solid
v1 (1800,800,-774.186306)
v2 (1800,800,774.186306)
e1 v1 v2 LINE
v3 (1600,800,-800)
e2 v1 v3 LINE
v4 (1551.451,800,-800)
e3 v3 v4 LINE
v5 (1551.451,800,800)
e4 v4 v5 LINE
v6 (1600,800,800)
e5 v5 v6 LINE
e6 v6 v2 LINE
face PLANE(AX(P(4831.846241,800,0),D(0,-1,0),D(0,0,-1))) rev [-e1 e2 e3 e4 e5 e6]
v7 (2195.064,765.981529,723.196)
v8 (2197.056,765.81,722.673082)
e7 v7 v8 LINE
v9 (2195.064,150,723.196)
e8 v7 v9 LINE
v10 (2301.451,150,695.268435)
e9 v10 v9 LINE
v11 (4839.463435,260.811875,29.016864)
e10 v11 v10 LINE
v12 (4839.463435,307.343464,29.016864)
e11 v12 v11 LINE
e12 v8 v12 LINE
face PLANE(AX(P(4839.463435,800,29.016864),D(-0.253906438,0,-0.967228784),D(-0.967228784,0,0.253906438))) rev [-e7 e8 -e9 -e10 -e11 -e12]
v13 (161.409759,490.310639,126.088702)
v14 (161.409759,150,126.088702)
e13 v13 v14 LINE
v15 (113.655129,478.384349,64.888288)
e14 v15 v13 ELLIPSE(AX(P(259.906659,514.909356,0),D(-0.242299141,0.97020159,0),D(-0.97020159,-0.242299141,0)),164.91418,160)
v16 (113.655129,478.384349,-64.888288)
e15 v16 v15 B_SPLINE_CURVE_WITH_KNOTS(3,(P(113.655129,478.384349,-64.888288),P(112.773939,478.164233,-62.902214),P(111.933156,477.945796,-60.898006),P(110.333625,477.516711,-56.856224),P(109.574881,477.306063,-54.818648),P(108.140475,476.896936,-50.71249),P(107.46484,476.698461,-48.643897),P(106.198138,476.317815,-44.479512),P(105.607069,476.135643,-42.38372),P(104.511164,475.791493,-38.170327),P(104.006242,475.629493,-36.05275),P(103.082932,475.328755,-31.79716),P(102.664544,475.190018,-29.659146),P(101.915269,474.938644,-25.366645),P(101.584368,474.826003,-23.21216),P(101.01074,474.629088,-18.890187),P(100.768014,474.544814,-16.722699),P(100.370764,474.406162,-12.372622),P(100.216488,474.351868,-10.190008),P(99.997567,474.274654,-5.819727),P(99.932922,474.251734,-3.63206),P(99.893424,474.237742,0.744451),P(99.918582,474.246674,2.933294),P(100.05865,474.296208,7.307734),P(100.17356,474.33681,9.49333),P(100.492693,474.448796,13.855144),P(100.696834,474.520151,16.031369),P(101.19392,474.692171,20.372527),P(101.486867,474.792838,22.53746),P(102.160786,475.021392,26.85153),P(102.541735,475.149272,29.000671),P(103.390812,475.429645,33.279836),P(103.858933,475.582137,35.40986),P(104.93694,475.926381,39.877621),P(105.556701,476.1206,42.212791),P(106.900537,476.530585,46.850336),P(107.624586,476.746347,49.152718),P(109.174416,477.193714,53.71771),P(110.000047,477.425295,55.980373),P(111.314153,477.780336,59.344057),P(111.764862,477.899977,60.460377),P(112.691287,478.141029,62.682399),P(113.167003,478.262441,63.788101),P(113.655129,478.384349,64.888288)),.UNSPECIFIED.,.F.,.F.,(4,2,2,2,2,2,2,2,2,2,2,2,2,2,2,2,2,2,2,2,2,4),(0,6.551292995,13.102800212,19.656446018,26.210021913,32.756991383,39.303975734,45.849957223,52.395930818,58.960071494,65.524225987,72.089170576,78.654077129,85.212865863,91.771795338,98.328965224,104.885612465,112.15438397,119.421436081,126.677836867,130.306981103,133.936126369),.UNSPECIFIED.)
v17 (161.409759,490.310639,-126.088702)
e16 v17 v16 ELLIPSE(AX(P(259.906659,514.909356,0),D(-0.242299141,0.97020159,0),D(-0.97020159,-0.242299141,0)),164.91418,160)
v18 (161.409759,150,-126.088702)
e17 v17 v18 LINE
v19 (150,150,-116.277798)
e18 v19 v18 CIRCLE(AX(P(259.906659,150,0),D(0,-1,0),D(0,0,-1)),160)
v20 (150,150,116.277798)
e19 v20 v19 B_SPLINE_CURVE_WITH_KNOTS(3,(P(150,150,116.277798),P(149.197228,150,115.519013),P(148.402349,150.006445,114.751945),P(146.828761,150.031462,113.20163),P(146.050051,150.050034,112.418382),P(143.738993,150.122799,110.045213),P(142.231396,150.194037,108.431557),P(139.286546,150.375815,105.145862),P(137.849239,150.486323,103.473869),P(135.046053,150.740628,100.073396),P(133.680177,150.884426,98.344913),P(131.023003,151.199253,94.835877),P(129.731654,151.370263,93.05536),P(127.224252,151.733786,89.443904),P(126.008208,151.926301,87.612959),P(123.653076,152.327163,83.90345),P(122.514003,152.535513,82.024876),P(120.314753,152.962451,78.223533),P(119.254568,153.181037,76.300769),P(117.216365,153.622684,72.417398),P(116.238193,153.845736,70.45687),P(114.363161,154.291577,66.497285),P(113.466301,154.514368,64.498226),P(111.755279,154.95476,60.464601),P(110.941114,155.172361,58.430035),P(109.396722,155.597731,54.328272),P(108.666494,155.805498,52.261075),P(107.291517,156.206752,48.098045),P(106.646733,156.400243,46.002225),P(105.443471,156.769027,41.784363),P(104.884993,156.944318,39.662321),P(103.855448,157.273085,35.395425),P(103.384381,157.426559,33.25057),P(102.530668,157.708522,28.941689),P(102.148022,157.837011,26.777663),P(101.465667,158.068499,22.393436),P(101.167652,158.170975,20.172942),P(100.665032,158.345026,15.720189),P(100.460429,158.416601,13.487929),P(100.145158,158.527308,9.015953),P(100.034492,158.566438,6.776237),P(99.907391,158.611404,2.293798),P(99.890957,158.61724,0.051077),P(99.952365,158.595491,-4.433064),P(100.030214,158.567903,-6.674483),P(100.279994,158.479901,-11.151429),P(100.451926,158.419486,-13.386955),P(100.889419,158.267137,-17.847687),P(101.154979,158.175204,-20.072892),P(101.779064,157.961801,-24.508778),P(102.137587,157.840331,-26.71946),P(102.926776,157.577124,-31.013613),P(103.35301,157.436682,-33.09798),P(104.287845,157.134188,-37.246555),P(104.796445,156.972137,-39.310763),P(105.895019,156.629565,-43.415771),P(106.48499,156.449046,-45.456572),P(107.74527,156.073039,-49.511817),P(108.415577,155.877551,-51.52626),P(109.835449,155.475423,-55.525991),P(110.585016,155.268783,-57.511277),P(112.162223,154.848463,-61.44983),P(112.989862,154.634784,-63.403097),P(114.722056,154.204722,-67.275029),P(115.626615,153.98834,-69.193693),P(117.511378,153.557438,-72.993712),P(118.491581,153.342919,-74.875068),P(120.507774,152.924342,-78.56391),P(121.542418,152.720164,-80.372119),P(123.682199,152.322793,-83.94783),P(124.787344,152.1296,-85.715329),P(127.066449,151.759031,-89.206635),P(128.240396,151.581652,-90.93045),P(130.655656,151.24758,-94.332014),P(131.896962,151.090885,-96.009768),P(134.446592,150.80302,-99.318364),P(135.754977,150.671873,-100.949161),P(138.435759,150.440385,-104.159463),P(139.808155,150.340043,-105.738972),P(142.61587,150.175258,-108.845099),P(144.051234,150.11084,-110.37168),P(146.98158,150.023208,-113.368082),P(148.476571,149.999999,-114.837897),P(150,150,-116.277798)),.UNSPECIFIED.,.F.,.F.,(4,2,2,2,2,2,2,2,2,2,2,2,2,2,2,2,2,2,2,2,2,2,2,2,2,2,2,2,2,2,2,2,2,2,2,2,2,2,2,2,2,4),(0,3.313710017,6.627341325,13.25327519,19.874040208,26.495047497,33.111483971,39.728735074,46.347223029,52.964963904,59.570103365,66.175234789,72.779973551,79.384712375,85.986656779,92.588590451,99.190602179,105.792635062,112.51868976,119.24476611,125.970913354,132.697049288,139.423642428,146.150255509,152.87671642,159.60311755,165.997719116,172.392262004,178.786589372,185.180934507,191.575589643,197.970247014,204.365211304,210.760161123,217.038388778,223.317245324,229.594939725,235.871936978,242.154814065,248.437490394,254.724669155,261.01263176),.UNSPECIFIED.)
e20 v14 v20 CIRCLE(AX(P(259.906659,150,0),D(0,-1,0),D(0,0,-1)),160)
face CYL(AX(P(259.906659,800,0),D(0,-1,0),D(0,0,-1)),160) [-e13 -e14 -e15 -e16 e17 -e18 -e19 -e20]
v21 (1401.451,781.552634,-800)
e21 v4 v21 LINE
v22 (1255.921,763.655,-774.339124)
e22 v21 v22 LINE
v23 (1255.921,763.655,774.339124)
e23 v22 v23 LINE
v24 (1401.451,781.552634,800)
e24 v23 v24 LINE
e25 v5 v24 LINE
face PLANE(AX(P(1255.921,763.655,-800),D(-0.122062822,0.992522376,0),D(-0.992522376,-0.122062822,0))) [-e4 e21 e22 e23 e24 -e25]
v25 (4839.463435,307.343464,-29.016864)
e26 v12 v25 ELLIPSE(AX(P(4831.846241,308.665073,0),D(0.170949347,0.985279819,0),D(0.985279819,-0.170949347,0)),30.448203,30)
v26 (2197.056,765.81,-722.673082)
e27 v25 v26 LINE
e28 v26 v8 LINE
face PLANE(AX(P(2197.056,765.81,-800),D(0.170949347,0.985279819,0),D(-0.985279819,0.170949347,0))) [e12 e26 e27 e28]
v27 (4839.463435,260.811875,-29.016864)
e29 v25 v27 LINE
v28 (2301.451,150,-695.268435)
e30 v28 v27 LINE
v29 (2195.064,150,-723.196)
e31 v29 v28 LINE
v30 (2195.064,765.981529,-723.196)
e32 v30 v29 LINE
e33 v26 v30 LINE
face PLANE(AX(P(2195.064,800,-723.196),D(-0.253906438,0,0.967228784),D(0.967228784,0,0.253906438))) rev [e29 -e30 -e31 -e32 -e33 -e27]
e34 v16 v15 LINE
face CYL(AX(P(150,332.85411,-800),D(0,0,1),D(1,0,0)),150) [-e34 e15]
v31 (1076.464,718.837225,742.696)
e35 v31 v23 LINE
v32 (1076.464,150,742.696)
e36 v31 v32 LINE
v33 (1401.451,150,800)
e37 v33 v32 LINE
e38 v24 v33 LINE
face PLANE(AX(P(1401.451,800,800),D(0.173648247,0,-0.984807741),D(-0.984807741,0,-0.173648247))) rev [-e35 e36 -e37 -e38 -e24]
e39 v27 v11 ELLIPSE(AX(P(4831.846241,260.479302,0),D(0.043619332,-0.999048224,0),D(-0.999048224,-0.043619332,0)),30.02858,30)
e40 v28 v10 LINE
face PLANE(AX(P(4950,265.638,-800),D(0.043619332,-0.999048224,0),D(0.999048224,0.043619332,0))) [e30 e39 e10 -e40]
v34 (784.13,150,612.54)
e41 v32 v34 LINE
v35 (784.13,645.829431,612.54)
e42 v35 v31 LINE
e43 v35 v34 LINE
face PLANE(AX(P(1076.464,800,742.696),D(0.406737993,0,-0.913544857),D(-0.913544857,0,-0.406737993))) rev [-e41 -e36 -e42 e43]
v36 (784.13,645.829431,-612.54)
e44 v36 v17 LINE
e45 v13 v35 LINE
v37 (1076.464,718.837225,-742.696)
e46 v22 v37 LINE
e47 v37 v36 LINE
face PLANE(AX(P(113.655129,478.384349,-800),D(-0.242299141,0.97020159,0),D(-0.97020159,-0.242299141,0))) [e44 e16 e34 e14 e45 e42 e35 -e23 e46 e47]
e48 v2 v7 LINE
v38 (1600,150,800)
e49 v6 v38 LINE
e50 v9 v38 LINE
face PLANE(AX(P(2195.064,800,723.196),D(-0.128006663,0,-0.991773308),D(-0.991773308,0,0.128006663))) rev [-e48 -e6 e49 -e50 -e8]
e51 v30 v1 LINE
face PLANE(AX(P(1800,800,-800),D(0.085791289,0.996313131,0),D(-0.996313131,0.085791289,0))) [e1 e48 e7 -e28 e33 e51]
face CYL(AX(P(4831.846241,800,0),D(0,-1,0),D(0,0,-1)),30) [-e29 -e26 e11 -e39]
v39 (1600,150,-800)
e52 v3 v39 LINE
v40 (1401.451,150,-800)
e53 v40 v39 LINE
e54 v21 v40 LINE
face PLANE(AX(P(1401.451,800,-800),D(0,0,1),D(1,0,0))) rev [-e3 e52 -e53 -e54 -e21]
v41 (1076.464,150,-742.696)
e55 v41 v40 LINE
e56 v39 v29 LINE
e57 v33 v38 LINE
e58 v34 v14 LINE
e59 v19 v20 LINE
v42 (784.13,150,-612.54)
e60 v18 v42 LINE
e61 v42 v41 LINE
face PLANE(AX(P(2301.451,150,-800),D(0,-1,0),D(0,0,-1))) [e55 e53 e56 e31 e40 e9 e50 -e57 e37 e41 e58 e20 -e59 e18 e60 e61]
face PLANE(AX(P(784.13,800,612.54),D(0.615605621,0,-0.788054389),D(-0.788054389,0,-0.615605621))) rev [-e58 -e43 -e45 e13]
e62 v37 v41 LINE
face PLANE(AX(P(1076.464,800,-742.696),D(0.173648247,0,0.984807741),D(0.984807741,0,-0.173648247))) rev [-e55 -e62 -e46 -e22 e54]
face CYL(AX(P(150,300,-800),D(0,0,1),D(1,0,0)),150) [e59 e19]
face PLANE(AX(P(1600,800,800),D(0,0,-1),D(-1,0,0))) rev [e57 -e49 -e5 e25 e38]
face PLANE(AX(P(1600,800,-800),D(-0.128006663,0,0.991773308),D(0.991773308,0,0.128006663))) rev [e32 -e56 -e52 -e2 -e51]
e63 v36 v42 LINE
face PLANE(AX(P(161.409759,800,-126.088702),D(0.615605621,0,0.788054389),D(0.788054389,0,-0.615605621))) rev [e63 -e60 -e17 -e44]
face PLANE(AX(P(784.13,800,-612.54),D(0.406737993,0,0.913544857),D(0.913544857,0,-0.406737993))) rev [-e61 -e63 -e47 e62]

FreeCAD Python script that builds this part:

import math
import FreeCAD as App
import Part
import Sketcher
Q = App.Units.Quantity


def add_polygon(sketch, points):
    """Adds a closed chain of lines whose ends are joined by coincident constraints."""
    first, n = sketch.GeometryCount, len(points)
    for a, b in zip(points, points[1:] + points[:1]):
        sketch.addGeometry(Part.LineSegment(App.Vector(*a, 0), App.Vector(*b, 0)), False)
    for i in range(n):
        sketch.addConstraint(Sketcher.Constraint("Coincident", first + i, 2, first + (i + 1) % n, 1))

doc = App.newDocument("Part")
body = doc.addObject("PartDesign::Body", "Body")

# Sketch on XZ plane
sketch1 = doc.addObject("Sketcher::SketchObject", "Sketch")
body.addObject(sketch1)
sketch1.AttachmentSupport = (doc.XZ_Plane, [""])
sketch1.MapMode = "FlatFace"
sketch1.addGeometry([
    Part.LineSegment(App.Vector(784.13, -612.54, 0), App.Vector(161.409759, -126.088702, 0)),  # 0
    Part.ArcOfCircle(Part.Circle(App.Vector(259.906659, 0, 0), App.Vector(0, 0, 1), 160), math.radians(127.995939), math.radians(232.004061)),  # 1
    Part.LineSegment(App.Vector(161.409759, 126.088702, 0), App.Vector(784.13, 612.54, 0)),  # 2
    Part.LineSegment(App.Vector(784.13, 612.54, 0), App.Vector(1076.464, 742.696, 0)),  # 3
    Part.LineSegment(App.Vector(1076.464, 742.696, 0), App.Vector(1401.451, 800, 0)),  # 4
    Part.LineSegment(App.Vector(1401.451, 800, 0), App.Vector(1600, 800, 0)),  # 5
    Part.LineSegment(App.Vector(1600, 800, 0), App.Vector(2195.064, 723.196, 0)),  # 6
    Part.LineSegment(App.Vector(2195.064, 723.196, 0), App.Vector(4839.463435, 29.016864, 0)),  # 7
    Part.ArcOfCircle(Part.Circle(App.Vector(4831.846241, 0, 0), App.Vector(0, 0, 1), 30), math.radians(-75.291204), math.radians(75.291204)),  # 8
    Part.LineSegment(App.Vector(4839.463435, -29.016864, 0), App.Vector(2195.064, -723.196, 0)),  # 9
    Part.LineSegment(App.Vector(2195.064, -723.196, 0), App.Vector(1600, -800, 0)),  # 10
    Part.LineSegment(App.Vector(1600, -800, 0), App.Vector(1401.451, -800, 0)),  # 11
    Part.LineSegment(App.Vector(1401.451, -800, 0), App.Vector(1076.464, -742.696, 0)),  # 12
    Part.LineSegment(App.Vector(1076.464, -742.696, 0), App.Vector(784.13, -612.54, 0)),  # 13
], False)
sketch1.addConstraint([
    Sketcher.Constraint("Tangent", 0, 2, 1, 2),
    Sketcher.Constraint("Tangent", 1, 1, 2, 1),
    Sketcher.Constraint("Coincident", 2, 2, 3, 1),
    Sketcher.Constraint("Coincident", 3, 2, 4, 1),
    Sketcher.Constraint("Coincident", 4, 2, 5, 1),
    Sketcher.Constraint("Coincident", 5, 2, 6, 1),
    Sketcher.Constraint("Coincident", 6, 2, 7, 1),
    Sketcher.Constraint("Tangent", 7, 2, 8, 2),
    Sketcher.Constraint("Tangent", 8, 1, 9, 1),
    Sketcher.Constraint("Coincident", 9, 2, 10, 1),
    Sketcher.Constraint("Coincident", 10, 2, 11, 1),
    Sketcher.Constraint("Coincident", 11, 2, 12, 1),
    Sketcher.Constraint("Coincident", 12, 2, 13, 1),
    Sketcher.Constraint("Coincident", 13, 2, 0, 1),
    Sketcher.Constraint("Horizontal", 5),
    Sketcher.Constraint("Horizontal", 11),
    Sketcher.Constraint("Symmetric", 6, 2, 9, 2, -1),
    Sketcher.Constraint("Symmetric", 5, 2, 10, 2, -1),
    Sketcher.Constraint("Symmetric", 3, 2, 12, 2, -1),
    Sketcher.Constraint("Symmetric", 2, 2, 13, 2, -1),
    Sketcher.Constraint("PointOnObject", 1, 3, -1),
    Sketcher.Constraint("PointOnObject", 8, 3, -1),
    Sketcher.Constraint("Vertical", 4, 2, 11, 2),
    Sketcher.Constraint("Radius", 1, 160.0),
    Sketcher.Constraint("Radius", 8, 30.0),
    Sketcher.Constraint("Angle", 4, Q("10.000004 deg")),
    Sketcher.Constraint("DistanceY", -1, 1, 4, 2, 800.0),
    Sketcher.Constraint("DistanceX", -1, 1, 5, 2, 1600.0),
    Sketcher.Constraint("DistanceX", 3, 2, 6, 2, 1118.6),
    Sketcher.Constraint("DistanceY", 6, 2, 3, 2, 19.5),
    Sketcher.Constraint("DistanceX", 5, 1, 5, 2, 198.549),
    Sketcher.Constraint("DistanceX", -1, 1, 2, 2, 784.13),
    Sketcher.Constraint("DistanceY", -1, 1, 2, 2, 612.54),
    Sketcher.Constraint("DistanceX", -1, 1, 3, 2, 1076.464),
    Sketcher.Constraint("Distance", 7, 2733.995802),
    Sketcher.Constraint("DistanceX", 0, 2, 1, 3, 98.496899),
])
pad1 = doc.addObject("PartDesign::Pad", "Pad")
body.addObject(pad1)
pad1.Profile = sketch1
pad1.Length = 800
pad1.Reversed = True

# Sketch on XY plane
sketch2 = doc.addObject("Sketcher::SketchObject", "Sketch001")
body.addObject(sketch2)
sketch2.AttachmentSupport = (doc.XY_Plane, [""])
sketch2.MapMode = "FlatFace"
add_polygon(sketch2, [(-409.778, 1309.685), (-409.778, -509.685), (5371.531, -509.685), (5371.531, 1309.685)])  # lines 0-3
sketch2.addGeometry(Part.ArcOfCircle(Part.Circle(App.Vector(150, 300, 0), App.Vector(0, 0, 1), 150), math.radians(180), math.radians(270)), False)  # 4
sketch2.addGeometry(Part.LineSegment(App.Vector(0, 300, 0), App.Vector(0, 332.85411, 0)), False)  # 5
sketch2.addGeometry(Part.ArcOfCircle(Part.Circle(App.Vector(150, 332.85411, 0), App.Vector(0, 0, 1), 150), math.radians(104.022277), math.radians(180)), False)  # 6
sketch2.addGeometry(Part.LineSegment(App.Vector(113.655129, 478.384349, 0), App.Vector(1255.921, 763.655, 0)), False)  # 7
sketch2.addGeometry(Part.LineSegment(App.Vector(1255.921, 763.655, 0), App.Vector(1551.451, 800, 0)), False)  # 8
sketch2.addGeometry(Part.LineSegment(App.Vector(1551.451, 800, 0), App.Vector(1800, 800, 0)), False)  # 9
sketch2.addGeometry(Part.LineSegment(App.Vector(1800, 800, 0), App.Vector(2197.056, 765.81, 0)), False)  # 10
sketch2.addGeometry(Part.LineSegment(App.Vector(2197.056, 765.81, 0), App.Vector(4950, 288.165, 0)), False)  # 11
sketch2.addGeometry(Part.LineSegment(App.Vector(4950, 288.165, 0), App.Vector(4950, 265.638, 0)), False)  # 12
sketch2.addGeometry(Part.LineSegment(App.Vector(4950, 265.638, 0), App.Vector(2301.451, 150, 0)), False)  # 13
sketch2.addGeometry(Part.LineSegment(App.Vector(2301.451, 150, 0), App.Vector(150, 150, 0)), False)  # 14
sketch2.addConstraint([
    Sketcher.Constraint("Tangent", 4, 1, 5, 1),
    Sketcher.Constraint("Tangent", 5, 2, 6, 2),
    Sketcher.Constraint("Tangent", 6, 1, 7, 1),
    Sketcher.Constraint("Coincident", 7, 2, 8, 1),
    Sketcher.Constraint("Coincident", 8, 2, 9, 1),
    Sketcher.Constraint("Coincident", 9, 2, 10, 1),
    Sketcher.Constraint("Coincident", 10, 2, 11, 1),
    Sketcher.Constraint("Coincident", 11, 2, 12, 1),
    Sketcher.Constraint("Coincident", 12, 2, 13, 1),
    Sketcher.Constraint("Coincident", 13, 2, 14, 1),
    Sketcher.Constraint("Tangent", 14, 2, 4, 2),
    Sketcher.Constraint("Vertical", 0),
    Sketcher.Constraint("Horizontal", 1),
    Sketcher.Constraint("Vertical", 2),
    Sketcher.Constraint("Horizontal", 3),
    Sketcher.Constraint("Vertical", 5),
    Sketcher.Constraint("Horizontal", 9),
    Sketcher.Constraint("Vertical", 12),
    Sketcher.Constraint("Horizontal", 14),
    Sketcher.Constraint("Equal", 4, 6),
    Sketcher.Constraint("PointOnObject", 4, 1, -2),
    Sketcher.Constraint("Radius", 4, 150.0),
    Sketcher.Constraint("DistanceY", -1, 1, 4, 3, 300.0),
    Sketcher.Constraint("DistanceY", -1, 1, 8, 2, 800.0),
    Sketcher.Constraint("DistanceX", -1, 1, 9, 2, 1800.0),
    Sketcher.Constraint("DistanceX", -1, 1, 11, 2, 4950.0),
    Sketcher.Constraint("Angle", 13, Q("-177.500003 deg")),
    Sketcher.Constraint("DistanceX", 8, 2, 13, 2, 750.0),
    Sketcher.Constraint("DistanceY", 0, 2, 0, 1, 1819.37),
    Sketcher.Constraint("DistanceX", 1, 1, 1, 2, 5781.309),
    Sketcher.Constraint("DistanceX", 9, 1, 9, 2, 248.549),
    Sketcher.Constraint("DistanceY", 12, 2, 12, 1, 22.527),
    Sketcher.Constraint("DistanceY", -1, 1, 10, 2, 765.81),
    Sketcher.Constraint("DistanceX", 7, 2, 8, 2, 295.53),
    Sketcher.Constraint("DistanceY", 1, 2, 11, 2, 797.85),
    Sketcher.Constraint("Distance", 7, 1177.348999),
    Sketcher.Constraint("DistanceX", 0, 2, -1, 1, 409.778),
    Sketcher.Constraint("DistanceY", -1, 1, 7, 2, 763.655),
    Sketcher.Constraint("DistanceX", -1, 1, 10, 2, 2197.056),
])
pocket1 = doc.addObject("PartDesign::Pocket", "Pocket")
body.addObject(pocket1)
pocket1.Profile = sketch2
pocket1.Type = "ThroughAll"
pocket1.Midplane = True

doc.recompute()
